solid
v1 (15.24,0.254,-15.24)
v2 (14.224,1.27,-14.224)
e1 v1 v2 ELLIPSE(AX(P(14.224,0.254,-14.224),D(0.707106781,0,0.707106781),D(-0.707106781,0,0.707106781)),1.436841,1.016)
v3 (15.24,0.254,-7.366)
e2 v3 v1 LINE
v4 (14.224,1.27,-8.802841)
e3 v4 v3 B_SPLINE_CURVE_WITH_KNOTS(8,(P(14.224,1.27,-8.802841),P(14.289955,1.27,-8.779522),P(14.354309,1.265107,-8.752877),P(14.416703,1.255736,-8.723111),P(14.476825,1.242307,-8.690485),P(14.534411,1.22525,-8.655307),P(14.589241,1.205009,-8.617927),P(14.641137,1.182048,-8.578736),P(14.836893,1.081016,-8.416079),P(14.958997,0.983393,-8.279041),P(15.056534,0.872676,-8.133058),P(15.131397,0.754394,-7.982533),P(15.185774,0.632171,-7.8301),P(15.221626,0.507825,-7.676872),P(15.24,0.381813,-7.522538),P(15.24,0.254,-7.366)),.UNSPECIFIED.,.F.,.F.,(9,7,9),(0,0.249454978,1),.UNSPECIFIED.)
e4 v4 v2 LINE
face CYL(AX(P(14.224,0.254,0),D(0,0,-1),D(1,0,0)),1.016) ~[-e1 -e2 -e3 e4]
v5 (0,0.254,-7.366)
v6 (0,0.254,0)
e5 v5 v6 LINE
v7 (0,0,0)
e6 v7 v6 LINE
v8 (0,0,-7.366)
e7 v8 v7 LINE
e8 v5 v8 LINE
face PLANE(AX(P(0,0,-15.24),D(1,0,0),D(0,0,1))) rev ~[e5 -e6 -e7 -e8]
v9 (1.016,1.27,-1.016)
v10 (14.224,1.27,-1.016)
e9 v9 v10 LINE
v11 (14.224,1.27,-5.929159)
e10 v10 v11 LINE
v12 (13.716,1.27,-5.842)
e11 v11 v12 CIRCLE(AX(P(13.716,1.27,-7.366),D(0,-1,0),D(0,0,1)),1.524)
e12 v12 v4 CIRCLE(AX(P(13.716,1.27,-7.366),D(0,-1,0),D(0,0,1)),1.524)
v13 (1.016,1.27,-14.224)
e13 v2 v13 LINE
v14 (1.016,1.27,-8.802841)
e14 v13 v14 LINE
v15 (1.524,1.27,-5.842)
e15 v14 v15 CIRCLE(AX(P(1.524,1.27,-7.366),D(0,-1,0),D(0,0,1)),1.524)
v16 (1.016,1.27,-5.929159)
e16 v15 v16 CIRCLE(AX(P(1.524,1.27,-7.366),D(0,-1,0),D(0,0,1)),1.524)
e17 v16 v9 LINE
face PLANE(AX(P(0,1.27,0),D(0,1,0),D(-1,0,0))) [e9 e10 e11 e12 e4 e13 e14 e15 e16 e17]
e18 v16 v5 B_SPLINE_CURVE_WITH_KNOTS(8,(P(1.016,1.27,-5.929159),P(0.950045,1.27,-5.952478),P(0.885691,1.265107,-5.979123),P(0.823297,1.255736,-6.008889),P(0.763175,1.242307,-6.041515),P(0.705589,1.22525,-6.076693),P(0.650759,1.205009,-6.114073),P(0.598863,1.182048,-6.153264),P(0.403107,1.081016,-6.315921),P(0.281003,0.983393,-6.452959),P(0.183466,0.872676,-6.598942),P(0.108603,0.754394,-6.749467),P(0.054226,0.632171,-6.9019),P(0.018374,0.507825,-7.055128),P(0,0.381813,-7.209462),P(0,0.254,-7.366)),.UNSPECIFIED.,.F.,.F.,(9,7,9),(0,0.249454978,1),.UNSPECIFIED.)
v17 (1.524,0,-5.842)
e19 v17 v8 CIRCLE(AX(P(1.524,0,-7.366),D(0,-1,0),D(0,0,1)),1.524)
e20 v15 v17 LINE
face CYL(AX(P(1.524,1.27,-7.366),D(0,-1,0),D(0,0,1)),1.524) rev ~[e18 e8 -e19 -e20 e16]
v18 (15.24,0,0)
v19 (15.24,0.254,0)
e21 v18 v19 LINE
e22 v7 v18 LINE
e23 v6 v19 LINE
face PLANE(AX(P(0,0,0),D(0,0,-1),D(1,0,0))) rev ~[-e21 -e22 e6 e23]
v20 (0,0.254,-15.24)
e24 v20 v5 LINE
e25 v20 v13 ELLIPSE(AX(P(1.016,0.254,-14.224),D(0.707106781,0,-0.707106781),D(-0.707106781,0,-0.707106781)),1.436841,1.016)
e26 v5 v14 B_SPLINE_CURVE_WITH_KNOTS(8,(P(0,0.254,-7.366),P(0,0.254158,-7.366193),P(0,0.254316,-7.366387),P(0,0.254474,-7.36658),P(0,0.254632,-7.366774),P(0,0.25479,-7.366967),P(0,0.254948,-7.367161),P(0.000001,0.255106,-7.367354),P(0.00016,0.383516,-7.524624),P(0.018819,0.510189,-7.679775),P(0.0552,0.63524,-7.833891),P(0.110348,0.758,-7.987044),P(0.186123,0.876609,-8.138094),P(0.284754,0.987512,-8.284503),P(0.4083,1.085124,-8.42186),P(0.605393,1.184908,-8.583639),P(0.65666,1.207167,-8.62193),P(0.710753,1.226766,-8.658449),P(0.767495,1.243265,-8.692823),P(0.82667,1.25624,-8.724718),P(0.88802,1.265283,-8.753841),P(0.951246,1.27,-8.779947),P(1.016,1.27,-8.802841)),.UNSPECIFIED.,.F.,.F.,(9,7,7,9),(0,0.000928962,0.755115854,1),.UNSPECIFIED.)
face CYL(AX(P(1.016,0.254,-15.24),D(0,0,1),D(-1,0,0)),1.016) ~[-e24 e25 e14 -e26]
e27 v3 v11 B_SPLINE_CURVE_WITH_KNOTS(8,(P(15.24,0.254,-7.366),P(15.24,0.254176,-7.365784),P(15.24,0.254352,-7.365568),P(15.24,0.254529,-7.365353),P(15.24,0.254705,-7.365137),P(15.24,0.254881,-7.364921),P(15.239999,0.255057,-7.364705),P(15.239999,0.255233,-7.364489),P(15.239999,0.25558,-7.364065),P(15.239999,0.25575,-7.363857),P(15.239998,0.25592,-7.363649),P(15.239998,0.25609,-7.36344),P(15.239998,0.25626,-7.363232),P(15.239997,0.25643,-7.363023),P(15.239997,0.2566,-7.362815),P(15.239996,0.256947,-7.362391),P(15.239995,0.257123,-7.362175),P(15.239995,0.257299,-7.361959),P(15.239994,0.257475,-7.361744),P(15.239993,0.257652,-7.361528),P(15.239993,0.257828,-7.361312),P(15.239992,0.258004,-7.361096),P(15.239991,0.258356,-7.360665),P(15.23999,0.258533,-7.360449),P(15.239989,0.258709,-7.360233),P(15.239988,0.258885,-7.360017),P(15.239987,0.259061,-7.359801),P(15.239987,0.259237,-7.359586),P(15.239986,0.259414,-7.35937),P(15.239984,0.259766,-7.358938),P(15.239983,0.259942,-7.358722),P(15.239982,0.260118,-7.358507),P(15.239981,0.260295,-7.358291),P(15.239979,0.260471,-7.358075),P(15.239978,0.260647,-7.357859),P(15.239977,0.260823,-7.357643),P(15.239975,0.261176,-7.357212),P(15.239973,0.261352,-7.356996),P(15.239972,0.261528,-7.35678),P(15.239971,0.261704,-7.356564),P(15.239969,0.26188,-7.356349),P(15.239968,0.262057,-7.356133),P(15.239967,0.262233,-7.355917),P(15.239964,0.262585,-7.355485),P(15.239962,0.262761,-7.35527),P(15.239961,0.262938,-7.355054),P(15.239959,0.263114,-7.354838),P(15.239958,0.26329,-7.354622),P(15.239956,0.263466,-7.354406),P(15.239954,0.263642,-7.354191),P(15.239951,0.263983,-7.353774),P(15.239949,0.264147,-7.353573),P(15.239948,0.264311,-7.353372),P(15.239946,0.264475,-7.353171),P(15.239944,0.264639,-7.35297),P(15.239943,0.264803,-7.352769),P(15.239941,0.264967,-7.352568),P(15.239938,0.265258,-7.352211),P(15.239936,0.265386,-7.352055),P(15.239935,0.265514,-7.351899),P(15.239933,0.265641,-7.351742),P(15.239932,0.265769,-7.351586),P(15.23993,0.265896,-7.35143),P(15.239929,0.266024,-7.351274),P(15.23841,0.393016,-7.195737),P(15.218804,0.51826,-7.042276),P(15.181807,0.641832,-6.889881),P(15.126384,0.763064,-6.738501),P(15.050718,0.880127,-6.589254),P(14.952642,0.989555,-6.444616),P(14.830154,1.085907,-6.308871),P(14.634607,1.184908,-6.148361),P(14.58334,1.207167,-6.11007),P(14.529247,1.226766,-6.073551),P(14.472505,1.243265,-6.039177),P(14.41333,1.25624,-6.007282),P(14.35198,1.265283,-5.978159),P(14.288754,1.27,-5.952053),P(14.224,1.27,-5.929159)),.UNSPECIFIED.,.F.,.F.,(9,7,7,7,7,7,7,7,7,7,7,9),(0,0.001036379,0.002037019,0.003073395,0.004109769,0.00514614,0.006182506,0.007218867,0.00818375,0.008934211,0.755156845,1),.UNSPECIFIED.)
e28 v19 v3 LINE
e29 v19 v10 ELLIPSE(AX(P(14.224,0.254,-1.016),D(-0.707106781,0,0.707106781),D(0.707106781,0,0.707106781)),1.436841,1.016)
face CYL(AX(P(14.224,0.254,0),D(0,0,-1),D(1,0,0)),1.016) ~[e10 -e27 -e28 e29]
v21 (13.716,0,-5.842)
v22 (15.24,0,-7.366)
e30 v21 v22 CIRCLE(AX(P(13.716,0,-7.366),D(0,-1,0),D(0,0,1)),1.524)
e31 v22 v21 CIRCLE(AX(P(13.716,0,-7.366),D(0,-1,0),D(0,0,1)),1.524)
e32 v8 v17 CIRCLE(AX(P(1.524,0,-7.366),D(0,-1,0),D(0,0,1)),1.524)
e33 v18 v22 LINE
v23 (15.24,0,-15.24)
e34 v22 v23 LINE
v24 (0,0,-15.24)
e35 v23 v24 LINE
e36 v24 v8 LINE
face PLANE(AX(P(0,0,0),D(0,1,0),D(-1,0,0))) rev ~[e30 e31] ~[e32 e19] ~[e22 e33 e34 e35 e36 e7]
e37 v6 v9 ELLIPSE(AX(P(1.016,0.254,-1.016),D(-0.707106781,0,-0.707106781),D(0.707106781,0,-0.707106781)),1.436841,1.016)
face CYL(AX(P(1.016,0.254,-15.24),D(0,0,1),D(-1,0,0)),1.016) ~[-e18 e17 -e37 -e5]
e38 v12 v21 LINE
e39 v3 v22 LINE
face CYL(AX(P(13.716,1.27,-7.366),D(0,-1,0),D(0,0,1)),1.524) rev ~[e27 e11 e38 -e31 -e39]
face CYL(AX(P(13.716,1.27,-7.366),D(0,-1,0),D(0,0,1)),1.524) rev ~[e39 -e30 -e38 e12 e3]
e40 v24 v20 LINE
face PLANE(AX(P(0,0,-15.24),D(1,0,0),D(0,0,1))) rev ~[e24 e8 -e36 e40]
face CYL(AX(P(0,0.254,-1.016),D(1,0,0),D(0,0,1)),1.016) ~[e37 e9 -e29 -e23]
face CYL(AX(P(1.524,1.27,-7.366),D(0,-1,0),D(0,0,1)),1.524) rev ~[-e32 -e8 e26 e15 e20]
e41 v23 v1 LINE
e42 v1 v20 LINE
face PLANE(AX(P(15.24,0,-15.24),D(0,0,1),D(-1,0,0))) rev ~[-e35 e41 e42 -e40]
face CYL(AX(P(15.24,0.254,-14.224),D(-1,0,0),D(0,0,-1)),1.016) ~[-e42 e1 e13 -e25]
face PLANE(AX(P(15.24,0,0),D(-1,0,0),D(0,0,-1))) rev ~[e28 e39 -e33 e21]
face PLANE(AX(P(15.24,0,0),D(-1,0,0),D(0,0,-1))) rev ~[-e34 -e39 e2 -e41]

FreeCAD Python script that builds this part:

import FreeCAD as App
import Part
import Sketcher
from FreeCAD import Vector
Q = App.Units.Quantity


def edges_at(feature, points):
    """Names of the edges that pass closest to the given points."""
    edges = feature.Shape.Edges
    near = lambda p: min(range(len(edges)), key=lambda i: edges[i].distToShape(Part.Vertex(*p))[0])
    return sorted({f"Edge{near(p) + 1}" for p in points})


def add_polygon(sketch, points):
    """Adds a closed chain of lines whose ends are joined by coincident constraints."""
    first, n = sketch.GeometryCount, len(points)
    for a, b in zip(points, points[1:] + points[:1]):
        sketch.addGeometry(Part.LineSegment(App.Vector(*a, 0), App.Vector(*b, 0)), False)
    for i in range(n):
        sketch.addConstraint(Sketcher.Constraint("Coincident", first + i, 2, first + (i + 1) % n, 1))

doc = App.newDocument("Part")
body = doc.addObject("PartDesign::Body", "Body")

sketch1 = doc.addObject("Sketcher::SketchObject", "Sketch")
body.addObject(sketch1)
sketch1.AttachmentSupport = (doc.XZ_Plane, [""])
sketch1.MapMode = "FlatFace"
add_polygon(sketch1, [(0, -15), (0, 0), (15, 0), (15, -15)])
sketch1.addConstraint(Sketcher.Constraint("Vertical", 0))
sketch1.addConstraint(Sketcher.Constraint("Horizontal", 1))
sketch1.addConstraint(Sketcher.Constraint("Vertical", 2))
sketch1.addConstraint(Sketcher.Constraint("Horizontal", 3))
sketch1.addConstraint(Sketcher.Constraint("Coincident", 0, 2, -1, 1))
sketch1.addConstraint(Sketcher.Constraint("Equal", 3, 0))
sketch1.addConstraint(Sketcher.Constraint("DistanceX", 1, 1, 1, 2, Q("0.6 in")))
pad1 = doc.addObject("PartDesign::Pad", "Pad")
body.addObject(pad1)
pad1.Profile = sketch1
pad1.Length = Q("0.05 in")
pad1.Reversed = True
doc.recompute()

fillet = doc.addObject("PartDesign::Fillet", "Fillet")
body.addObject(fillet)
fillet.Base = (pad1, edges_at(pad1, [
    (7.62, 1.27, 0),
    (7.62, 1.27, -15.24),
    (15.24, 1.27, -7.62),
    (0, 1.27, -7.62),
]))
fillet.Radius = Q("0.04 in")

sketch2 = doc.addObject("Sketcher::SketchObject", "Sketch001")
body.addObject(sketch2)
sketch2.AttachmentSupport = (doc.XZ_Plane, [""])
sketch2.MapMode = "FlatFace"
sketch2.AttachmentOffset = App.Placement(Vector(0, 0, -0.05 * 25.4), App.Rotation())
sketch2.addGeometry(Part.Circle(Vector(1.5, -7.4, 0), Vector(0, 0, 1), 1.5), False)
sketch2.addGeometry(Part.Circle(Vector(13.7, -7.4, 0), Vector(0, 0, 1), 1.5), False)
sketch2.addConstraint(Sketcher.Constraint("Equal", 0, 1))
sketch2.addConstraint(Sketcher.Constraint("Horizontal", 0, 3, 1, 3))
sketch2.addConstraint(Sketcher.Constraint("Diameter", 0, Q("0.12 in")))
sketch2.addConstraint(Sketcher.Constraint("DistanceX", -1, 1, 0, 3, Q("0.06 in")))
sketch2.addConstraint(Sketcher.Constraint("DistanceY", 0, 3, -1, 1, Q("0.29 in")))
sketch2.addConstraint(Sketcher.Constraint("DistanceX", -1, 1, 1, 3, Q("0.54 in")))
doc.recompute()
hole = doc.addObject("PartDesign::Hole", "Hole")
body.addObject(hole)
hole.Profile = sketch2
hole.ThreadType = "None"
hole.Diameter = Q("0.12 in")
hole.DepthType = "ThroughAll"
hole.Reversed = True

doc.recompute()
